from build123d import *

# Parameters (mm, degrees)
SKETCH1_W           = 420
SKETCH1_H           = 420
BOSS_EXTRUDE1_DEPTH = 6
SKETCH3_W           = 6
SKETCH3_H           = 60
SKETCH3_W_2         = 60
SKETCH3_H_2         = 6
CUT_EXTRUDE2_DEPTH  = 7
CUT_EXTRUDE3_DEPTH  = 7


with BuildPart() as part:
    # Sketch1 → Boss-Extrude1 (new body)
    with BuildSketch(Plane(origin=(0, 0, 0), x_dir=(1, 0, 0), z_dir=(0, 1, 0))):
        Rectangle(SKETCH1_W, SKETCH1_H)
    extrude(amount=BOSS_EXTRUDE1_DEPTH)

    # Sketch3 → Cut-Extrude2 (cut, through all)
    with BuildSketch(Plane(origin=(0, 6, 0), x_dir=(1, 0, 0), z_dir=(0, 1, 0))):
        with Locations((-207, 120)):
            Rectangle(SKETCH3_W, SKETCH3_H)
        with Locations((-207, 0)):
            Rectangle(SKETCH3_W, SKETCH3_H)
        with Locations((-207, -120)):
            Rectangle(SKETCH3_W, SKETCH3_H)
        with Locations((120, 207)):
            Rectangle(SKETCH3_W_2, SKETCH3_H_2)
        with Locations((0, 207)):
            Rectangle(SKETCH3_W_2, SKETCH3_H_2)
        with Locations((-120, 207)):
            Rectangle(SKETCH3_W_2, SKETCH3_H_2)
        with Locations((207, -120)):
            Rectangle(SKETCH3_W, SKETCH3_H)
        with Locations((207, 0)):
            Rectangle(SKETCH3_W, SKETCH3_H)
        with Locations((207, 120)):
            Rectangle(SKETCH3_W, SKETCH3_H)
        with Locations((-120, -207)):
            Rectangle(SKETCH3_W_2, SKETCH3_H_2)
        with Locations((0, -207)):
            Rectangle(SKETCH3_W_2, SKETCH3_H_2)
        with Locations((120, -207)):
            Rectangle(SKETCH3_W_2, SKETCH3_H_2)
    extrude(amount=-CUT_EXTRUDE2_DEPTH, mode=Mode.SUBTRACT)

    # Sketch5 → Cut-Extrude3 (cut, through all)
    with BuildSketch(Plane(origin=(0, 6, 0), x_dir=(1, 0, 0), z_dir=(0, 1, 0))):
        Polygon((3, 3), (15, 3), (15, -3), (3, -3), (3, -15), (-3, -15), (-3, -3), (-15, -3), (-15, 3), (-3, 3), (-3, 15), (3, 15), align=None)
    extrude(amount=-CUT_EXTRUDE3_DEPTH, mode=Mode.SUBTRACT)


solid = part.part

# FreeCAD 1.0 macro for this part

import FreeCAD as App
import Part
import Sketcher
Q = App.Units.Quantity

doc = App.newDocument("Part")
body = doc.addObject("PartDesign::Body", "Body")

# Sketch on XZ plane
sketch1 = doc.addObject("Sketcher::SketchObject", "Sketch")
body.addObject(sketch1)
sketch1.AttachmentSupport = (doc.XZ_Plane, [""])
sketch1.MapMode = "FlatFace"
sketch1.addGeometry(Part.LineSegment(App.Vector(-210, -210, 0), App.Vector(-210, 210, 0)), False)
sketch1.addGeometry(Part.LineSegment(App.Vector(-210, 210, 0), App.Vector(210, 210, 0)), False)
sketch1.addGeometry(Part.LineSegment(App.Vector(210, 210, 0), App.Vector(210, -210, 0)), False)
sketch1.addGeometry(Part.LineSegment(App.Vector(210, -210, 0), App.Vector(-210, -210, 0)), False)
sketch1.addConstraint(Sketcher.Constraint("Coincident", 0, 2, 1, 1))
sketch1.addConstraint(Sketcher.Constraint("Coincident", 1, 2, 2, 1))
sketch1.addConstraint(Sketcher.Constraint("Coincident", 2, 2, 3, 1))
sketch1.addConstraint(Sketcher.Constraint("Coincident", 3, 2, 0, 1))
sketch1.addConstraint(Sketcher.Constraint("Vertical", 0))
sketch1.addConstraint(Sketcher.Constraint("Horizontal", 1))
sketch1.addConstraint(Sketcher.Constraint("Vertical", 2))
sketch1.addConstraint(Sketcher.Constraint("Horizontal", 3))
sketch1.addConstraint(Sketcher.Constraint("Symmetric", 0, 2, 2, 2, -1, 1))
sketch1.addConstraint(Sketcher.Constraint("Equal", 3, 0))
sketch1.addConstraint(Sketcher.Constraint("DistanceX", 1, 1, 1, 2, Q("420 mm")))
pad1 = doc.addObject("PartDesign::Pad", "Pad")
body.addObject(pad1)
pad1.Profile = sketch1
pad1.Length = 6
pad1.Reversed = True

# Sketch on XZ plane
sketch2 = doc.addObject("Sketcher::SketchObject", "Sketch001")
body.addObject(sketch2)
sketch2.AttachmentSupport = (doc.XZ_Plane, [""])
sketch2.MapMode = "FlatFace"
sketch2.AttachmentOffset = App.Placement(App.Vector(0, 0, -6), App.Rotation())
sketch2.addGeometry(Part.LineSegment(App.Vector(-210, -150, 0), App.Vector(-210, -90, 0)), False)
sketch2.addGeometry(Part.LineSegment(App.Vector(-210, -90, 0), App.Vector(-204, -90, 0)), False)
sketch2.addGeometry(Part.LineSegment(App.Vector(-204, -90, 0), App.Vector(-204, -150, 0)), False)
sketch2.addGeometry(Part.LineSegment(App.Vector(-204, -150, 0), App.Vector(-210, -150, 0)), False)
sketch2.addGeometry(Part.LineSegment(App.Vector(-210, -30, 0), App.Vector(-210, 30, 0)), False)
sketch2.addGeometry(Part.LineSegment(App.Vector(-210, 30, 0), App.Vector(-204, 30, 0)), False)
sketch2.addGeometry(Part.LineSegment(App.Vector(-204, 30, 0), App.Vector(-204, -30, 0)), False)
sketch2.addGeometry(Part.LineSegment(App.Vector(-204, -30, 0), App.Vector(-210, -30, 0)), False)
sketch2.addGeometry(Part.LineSegment(App.Vector(-210, 90, 0), App.Vector(-210, 150, 0)), False)
sketch2.addGeometry(Part.LineSegment(App.Vector(-210, 150, 0), App.Vector(-204, 150, 0)), False)
sketch2.addGeometry(Part.LineSegment(App.Vector(-204, 150, 0), App.Vector(-204, 90, 0)), False)
sketch2.addGeometry(Part.LineSegment(App.Vector(-204, 90, 0), App.Vector(-210, 90, 0)), False)
sketch2.addGeometry(Part.LineSegment(App.Vector(90, -210, 0), App.Vector(90, -204, 0)), False)
sketch2.addGeometry(Part.LineSegment(App.Vector(90, -204, 0), App.Vector(150, -204, 0)), False)
sketch2.addGeometry(Part.LineSegment(App.Vector(150, -204, 0), App.Vector(150, -210, 0)), False)
sketch2.addGeometry(Part.LineSegment(App.Vector(150, -210, 0), App.Vector(90, -210, 0)), False)
sketch2.addGeometry(Part.LineSegment(App.Vector(-30, -210, 0), App.Vector(-30, -204, 0)), False)
sketch2.addGeometry(Part.LineSegment(App.Vector(-30, -204, 0), App.Vector(30, -204, 0)), False)
sketch2.addGeometry(Part.LineSegment(App.Vector(30, -204, 0), App.Vector(30, -210, 0)), False)
sketch2.addGeometry(Part.LineSegment(App.Vector(30, -210, 0), App.Vector(-30, -210, 0)), False)
sketch2.addGeometry(Part.LineSegment(App.Vector(-150, -210, 0), App.Vector(-150, -204, 0)), False)
sketch2.addGeometry(Part.LineSegment(App.Vector(-150, -204, 0), App.Vector(-90, -204, 0)), False)
sketch2.addGeometry(Part.LineSegment(App.Vector(-90, -204, 0), App.Vector(-90, -210, 0)), False)
sketch2.addGeometry(Part.LineSegment(App.Vector(-90, -210, 0), App.Vector(-150, -210, 0)), False)
sketch2.addGeometry(Part.LineSegment(App.Vector(204, 90, 0), App.Vector(204, 150, 0)), False)
sketch2.addGeometry(Part.LineSegment(App.Vector(204, 150, 0), App.Vector(210, 150, 0)), False)
sketch2.addGeometry(Part.LineSegment(App.Vector(210, 150, 0), App.Vector(210, 90, 0)), False)
sketch2.addGeometry(Part.LineSegment(App.Vector(210, 90, 0), App.Vector(204, 90, 0)), False)
sketch2.addGeometry(Part.LineSegment(App.Vector(204, -30, 0), App.Vector(204, 30, 0)), False)
sketch2.addGeometry(Part.LineSegment(App.Vector(204, 30, 0), App.Vector(210, 30, 0)), False)
sketch2.addGeometry(Part.LineSegment(App.Vector(210, 30, 0), App.Vector(210, -30, 0)), False)
sketch2.addGeometry(Part.LineSegment(App.Vector(210, -30, 0), App.Vector(204, -30, 0)), False)
sketch2.addGeometry(Part.LineSegment(App.Vector(204, -150, 0), App.Vector(204, -90, 0)), False)
sketch2.addGeometry(Part.LineSegment(App.Vector(204, -90, 0), App.Vector(210, -90, 0)), False)
sketch2.addGeometry(Part.LineSegment(App.Vector(210, -90, 0), App.Vector(210, -150, 0)), False)
sketch2.addGeometry(Part.LineSegment(App.Vector(210, -150, 0), App.Vector(204, -150, 0)), False)
sketch2.addGeometry(Part.LineSegment(App.Vector(-150, 204, 0), App.Vector(-150, 210, 0)), False)
sketch2.addGeometry(Part.LineSegment(App.Vector(-150, 210, 0), App.Vector(-90, 210, 0)), False)
sketch2.addGeometry(Part.LineSegment(App.Vector(-90, 210, 0), App.Vector(-90, 204, 0)), False)
sketch2.addGeometry(Part.LineSegment(App.Vector(-90, 204, 0), App.Vector(-150, 204, 0)), False)
sketch2.addGeometry(Part.LineSegment(App.Vector(-30, 204, 0), App.Vector(-30, 210, 0)), False)
sketch2.addGeometry(Part.LineSegment(App.Vector(-30, 210, 0), App.Vector(30, 210, 0)), False)
sketch2.addGeometry(Part.LineSegment(App.Vector(30, 210, 0), App.Vector(30, 204, 0)), False)
sketch2.addGeometry(Part.LineSegment(App.Vector(30, 204, 0), App.Vector(-30, 204, 0)), False)
sketch2.addGeometry(Part.LineSegment(App.Vector(90, 204, 0), App.Vector(90, 210, 0)), False)
sketch2.addGeometry(Part.LineSegment(App.Vector(90, 210, 0), App.Vector(150, 210, 0)), False)
sketch2.addGeometry(Part.LineSegment(App.Vector(150, 210, 0), App.Vector(150, 204, 0)), False)
sketch2.addGeometry(Part.LineSegment(App.Vector(150, 204, 0), App.Vector(90, 204, 0)), False)
sketch2.addConstraint(Sketcher.Constraint("Coincident", 0, 2, 1, 1))
sketch2.addConstraint(Sketcher.Constraint("Coincident", 1, 2, 2, 1))
sketch2.addConstraint(Sketcher.Constraint("Coincident", 2, 2, 3, 1))
sketch2.addConstraint(Sketcher.Constraint("Coincident", 3, 2, 0, 1))
sketch2.addConstraint(Sketcher.Constraint("Coincident", 4, 2, 5, 1))
sketch2.addConstraint(Sketcher.Constraint("Coincident", 5, 2, 6, 1))
sketch2.addConstraint(Sketcher.Constraint("Coincident", 6, 2, 7, 1))
sketch2.addConstraint(Sketcher.Constraint("Coincident", 7, 2, 4, 1))
sketch2.addConstraint(Sketcher.Constraint("Coincident", 8, 2, 9, 1))
sketch2.addConstraint(Sketcher.Constraint("Coincident", 9, 2, 10, 1))
sketch2.addConstraint(Sketcher.Constraint("Coincident", 10, 2, 11, 1))
sketch2.addConstraint(Sketcher.Constraint("Coincident", 11, 2, 8, 1))
sketch2.addConstraint(Sketcher.Constraint("Coincident", 12, 2, 13, 1))
sketch2.addConstraint(Sketcher.Constraint("Coincident", 13, 2, 14, 1))
sketch2.addConstraint(Sketcher.Constraint("Coincident", 14, 2, 15, 1))
sketch2.addConstraint(Sketcher.Constraint("Coincident", 15, 2, 12, 1))
sketch2.addConstraint(Sketcher.Constraint("Coincident", 16, 2, 17, 1))
sketch2.addConstraint(Sketcher.Constraint("Coincident", 17, 2, 18, 1))
sketch2.addConstraint(Sketcher.Constraint("Coincident", 18, 2, 19, 1))
sketch2.addConstraint(Sketcher.Constraint("Coincident", 19, 2, 16, 1))
sketch2.addConstraint(Sketcher.Constraint("Coincident", 20, 2, 21, 1))
sketch2.addConstraint(Sketcher.Constraint("Coincident", 21, 2, 22, 1))
sketch2.addConstraint(Sketcher.Constraint("Coincident", 22, 2, 23, 1))
sketch2.addConstraint(Sketcher.Constraint("Coincident", 23, 2, 20, 1))
sketch2.addConstraint(Sketcher.Constraint("Coincident", 24, 2, 25, 1))
sketch2.addConstraint(Sketcher.Constraint("Coincident", 25, 2, 26, 1))
sketch2.addConstraint(Sketcher.Constraint("Coincident", 26, 2, 27, 1))
sketch2.addConstraint(Sketcher.Constraint("Coincident", 27, 2, 24, 1))
sketch2.addConstraint(Sketcher.Constraint("Coincident", 28, 2, 29, 1))
sketch2.addConstraint(Sketcher.Constraint("Coincident", 29, 2, 30, 1))
sketch2.addConstraint(Sketcher.Constraint("Coincident", 30, 2, 31, 1))
sketch2.addConstraint(Sketcher.Constraint("Coincident", 31, 2, 28, 1))
sketch2.addConstraint(Sketcher.Constraint("Coincident", 32, 2, 33, 1))
sketch2.addConstraint(Sketcher.Constraint("Coincident", 33, 2, 34, 1))
sketch2.addConstraint(Sketcher.Constraint("Coincident", 34, 2, 35, 1))
sketch2.addConstraint(Sketcher.Constraint("Coincident", 35, 2, 32, 1))
sketch2.addConstraint(Sketcher.Constraint("Coincident", 36, 2, 37, 1))
sketch2.addConstraint(Sketcher.Constraint("Coincident", 37, 2, 38, 1))
sketch2.addConstraint(Sketcher.Constraint("Coincident", 38, 2, 39, 1))
sketch2.addConstraint(Sketcher.Constraint("Coincident", 39, 2, 36, 1))
sketch2.addConstraint(Sketcher.Constraint("Coincident", 40, 2, 41, 1))
sketch2.addConstraint(Sketcher.Constraint("Coincident", 41, 2, 42, 1))
sketch2.addConstraint(Sketcher.Constraint("Coincident", 42, 2, 43, 1))
sketch2.addConstraint(Sketcher.Constraint("Coincident", 43, 2, 40, 1))
sketch2.addConstraint(Sketcher.Constraint("Coincident", 44, 2, 45, 1))
sketch2.addConstraint(Sketcher.Constraint("Coincident", 45, 2, 46, 1))
sketch2.addConstraint(Sketcher.Constraint("Coincident", 46, 2, 47, 1))
sketch2.addConstraint(Sketcher.Constraint("Coincident", 47, 2, 44, 1))
sketch2.addConstraint(Sketcher.Constraint("Vertical", 0))
sketch2.addConstraint(Sketcher.Constraint("Horizontal", 1))
sketch2.addConstraint(Sketcher.Constraint("Vertical", 2))
sketch2.addConstraint(Sketcher.Constraint("Horizontal", 3))
sketch2.addConstraint(Sketcher.Constraint("Vertical", 4))
sketch2.addConstraint(Sketcher.Constraint("Horizontal", 5))
sketch2.addConstraint(Sketcher.Constraint("Vertical", 6))
sketch2.addConstraint(Sketcher.Constraint("Horizontal", 7))
sketch2.addConstraint(Sketcher.Constraint("Vertical", 8))
sketch2.addConstraint(Sketcher.Constraint("Horizontal", 9))
sketch2.addConstraint(Sketcher.Constraint("Vertical", 10))
sketch2.addConstraint(Sketcher.Constraint("Horizontal", 11))
sketch2.addConstraint(Sketcher.Constraint("Vertical", 12))
sketch2.addConstraint(Sketcher.Constraint("Horizontal", 13))
sketch2.addConstraint(Sketcher.Constraint("Vertical", 14))
sketch2.addConstraint(Sketcher.Constraint("Horizontal", 15))
sketch2.addConstraint(Sketcher.Constraint("Vertical", 16))
sketch2.addConstraint(Sketcher.Constraint("Horizontal", 17))
sketch2.addConstraint(Sketcher.Constraint("Vertical", 18))
sketch2.addConstraint(Sketcher.Constraint("Horizontal", 19))
sketch2.addConstraint(Sketcher.Constraint("Vertical", 20))
sketch2.addConstraint(Sketcher.Constraint("Horizontal", 21))
sketch2.addConstraint(Sketcher.Constraint("Vertical", 22))
sketch2.addConstraint(Sketcher.Constraint("Horizontal", 23))
sketch2.addConstraint(Sketcher.Constraint("Vertical", 24))
sketch2.addConstraint(Sketcher.Constraint("Horizontal", 25))
sketch2.addConstraint(Sketcher.Constraint("Vertical", 26))
sketch2.addConstraint(Sketcher.Constraint("Horizontal", 27))
sketch2.addConstraint(Sketcher.Constraint("Vertical", 28))
sketch2.addConstraint(Sketcher.Constraint("Horizontal", 29))
sketch2.addConstraint(Sketcher.Constraint("Vertical", 30))
sketch2.addConstraint(Sketcher.Constraint("Horizontal", 31))
sketch2.addConstraint(Sketcher.Constraint("Vertical", 32))
sketch2.addConstraint(Sketcher.Constraint("Horizontal", 33))
sketch2.addConstraint(Sketcher.Constraint("Vertical", 34))
sketch2.addConstraint(Sketcher.Constraint("Horizontal", 35))
sketch2.addConstraint(Sketcher.Constraint("Vertical", 36))
sketch2.addConstraint(Sketcher.Constraint("Horizontal", 37))
sketch2.addConstraint(Sketcher.Constraint("Vertical", 38))
sketch2.addConstraint(Sketcher.Constraint("Horizontal", 39))
sketch2.addConstraint(Sketcher.Constraint("Vertical", 40))
sketch2.addConstraint(Sketcher.Constraint("Horizontal", 41))
sketch2.addConstraint(Sketcher.Constraint("Vertical", 42))
sketch2.addConstraint(Sketcher.Constraint("Horizontal", 43))
sketch2.addConstraint(Sketcher.Constraint("Vertical", 44))
sketch2.addConstraint(Sketcher.Constraint("Horizontal", 45))
sketch2.addConstraint(Sketcher.Constraint("Vertical", 46))
sketch2.addConstraint(Sketcher.Constraint("Horizontal", 47))
sketch2.addConstraint(Sketcher.Constraint("Symmetric", 2, 2, 24, 2, -1, 1))
sketch2.addConstraint(Sketcher.Constraint("Symmetric", 0, 2, 26, 2, -1, 1))
sketch2.addConstraint(Sketcher.Constraint("Symmetric", 6, 2, 28, 2, -1, 1))
sketch2.addConstraint(Sketcher.Constraint("Symmetric", 4, 2, 30, 2, -1, 1))
sketch2.addConstraint(Sketcher.Constraint("Symmetric", 10, 2, 32, 2, -1, 1))
sketch2.addConstraint(Sketcher.Constraint("Symmetric", 8, 2, 34, 2, -1, 1))
sketch2.addConstraint(Sketcher.Constraint("Symmetric", 14, 2, 36, 2, -1, 1))
sketch2.addConstraint(Sketcher.Constraint("Symmetric", 12, 2, 38, 2, -1, 1))
sketch2.addConstraint(Sketcher.Constraint("Symmetric", 18, 2, 40, 2, -1, 1))
sketch2.addConstraint(Sketcher.Constraint("Symmetric", 16, 2, 42, 2, -1, 1))
sketch2.addConstraint(Sketcher.Constraint("Symmetric", 22, 2, 44, 2, -1, 1))
sketch2.addConstraint(Sketcher.Constraint("Symmetric", 20, 2, 46, 2, -1, 1))
sketch2.addConstraint(Sketcher.Constraint("Symmetric", 13, 2, 20, 2, -2))
sketch2.addConstraint(Sketcher.Constraint("Symmetric", 15, 2, 22, 2, -2))
sketch2.addConstraint(Sketcher.Constraint("Symmetric", 9, 2, 24, 2, -2))
sketch2.addConstraint(Sketcher.Constraint("Symmetric", 11, 2, 26, 2, -2))
sketch2.addConstraint(Sketcher.Constraint("Horizontal", 13, 2, 16, 2))
sketch2.addConstraint(Sketcher.Constraint("Horizontal", 15, 2, 18, 2))
sketch2.addConstraint(Sketcher.Constraint("Horizontal", 5, 2, 28, 2))
sketch2.addConstraint(Sketcher.Constraint("Vertical", 3, 2, 4, 2))
sketch2.addConstraint(Sketcher.Constraint("Vertical", 2, 2, 5, 2))
sketch2.addConstraint(Sketcher.Constraint("Vertical", 19, 2, 40, 2))
sketch2.addConstraint(Sketcher.Constraint("Equal", 15, 17))
sketch2.addConstraint(Sketcher.Constraint("Equal", 47, 0))
sketch2.addConstraint(Sketcher.Constraint("Equal", 2, 4))
sketch2.addConstraint(Sketcher.Constraint("Equal", 35, 12))
sketch2.addConstraint(Sketcher.Constraint("DistanceX", 1, 1, 1, 2, Q("6 mm")))
sketch2.addConstraint(Sketcher.Constraint("DistanceX", 13, 1, 13, 2, Q("60 mm")))
sketch2.addConstraint(Sketcher.Constraint("DistanceX", 0, 2, -1, 1, Q("210 mm")))
sketch2.addConstraint(Sketcher.Constraint("DistanceY", 0, 2, -1, 1, Q("90 mm")))
sketch2.addConstraint(Sketcher.Constraint("DistanceX", -1, 1, 12, 2, Q("90 mm")))
sketch2.addConstraint(Sketcher.Constraint("DistanceY", 12, 2, -1, 1, Q("204 mm")))
pocket1 = doc.addObject("PartDesign::Pocket", "Pocket")
body.addObject(pocket1)
pocket1.Profile = sketch2
pocket1.Type = "ThroughAll"
pocket1.Reversed = True

# Sketch on XZ plane
sketch3 = doc.addObject("Sketcher::SketchObject", "Sketch002")
body.addObject(sketch3)
sketch3.AttachmentSupport = (doc.XZ_Plane, [""])
sketch3.MapMode = "FlatFace"
sketch3.AttachmentOffset = App.Placement(App.Vector(0, 0, -6), App.Rotation())
sketch3.addGeometry(Part.LineSegment(App.Vector(15, -3, 0), App.Vector(3, -3, 0)), False)
sketch3.addGeometry(Part.LineSegment(App.Vector(3, -3, 0), App.Vector(3, -15, 0)), False)
sketch3.addGeometry(Part.LineSegment(App.Vector(3, -15, 0), App.Vector(-3, -15, 0)), False)
sketch3.addGeometry(Part.LineSegment(App.Vector(-3, -15, 0), App.Vector(-3, -3, 0)), False)
sketch3.addGeometry(Part.LineSegment(App.Vector(-3, -3, 0), App.Vector(-15, -3, 0)), False)
sketch3.addGeometry(Part.LineSegment(App.Vector(-15, -3, 0), App.Vector(-15, 3, 0)), False)
sketch3.addGeometry(Part.LineSegment(App.Vector(-15, 3, 0), App.Vector(-3, 3, 0)), False)
sketch3.addGeometry(Part.LineSegment(App.Vector(-3, 3, 0), App.Vector(-3, 15, 0)), False)
sketch3.addGeometry(Part.LineSegment(App.Vector(-3, 15, 0), App.Vector(3, 15, 0)), False)
sketch3.addGeometry(Part.LineSegment(App.Vector(3, 15, 0), App.Vector(3, 3, 0)), False)
sketch3.addGeometry(Part.LineSegment(App.Vector(3, 3, 0), App.Vector(15, 3, 0)), False)
sketch3.addGeometry(Part.LineSegment(App.Vector(15, 3, 0), App.Vector(15, -3, 0)), False)
sketch3.addConstraint(Sketcher.Constraint("Coincident", 0, 2, 1, 1))
sketch3.addConstraint(Sketcher.Constraint("Coincident", 1, 2, 2, 1))
sketch3.addConstraint(Sketcher.Constraint("Coincident", 2, 2, 3, 1))
sketch3.addConstraint(Sketcher.Constraint("Coincident", 3, 2, 4, 1))
sketch3.addConstraint(Sketcher.Constraint("Coincident", 4, 2, 5, 1))
sketch3.addConstraint(Sketcher.Constraint("Coincident", 5, 2, 6, 1))
sketch3.addConstraint(Sketcher.Constraint("Coincident", 6, 2, 7, 1))
sketch3.addConstraint(Sketcher.Constraint("Coincident", 7, 2, 8, 1))
sketch3.addConstraint(Sketcher.Constraint("Coincident", 8, 2, 9, 1))
sketch3.addConstraint(Sketcher.Constraint("Coincident", 9, 2, 10, 1))
sketch3.addConstraint(Sketcher.Constraint("Coincident", 10, 2, 11, 1))
sketch3.addConstraint(Sketcher.Constraint("Coincident", 11, 2, 0, 1))
sketch3.addConstraint(Sketcher.Constraint("Horizontal", 0))
sketch3.addConstraint(Sketcher.Constraint("Vertical", 1))
sketch3.addConstraint(Sketcher.Constraint("Horizontal", 2))
sketch3.addConstraint(Sketcher.Constraint("Vertical", 3))
sketch3.addConstraint(Sketcher.Constraint("Horizontal", 4))
sketch3.addConstraint(Sketcher.Constraint("Vertical", 5))
sketch3.addConstraint(Sketcher.Constraint("Horizontal", 6))
sketch3.addConstraint(Sketcher.Constraint("Vertical", 7))
sketch3.addConstraint(Sketcher.Constraint("Horizontal", 8))
sketch3.addConstraint(Sketcher.Constraint("Vertical", 9))
sketch3.addConstraint(Sketcher.Constraint("Horizontal", 10))
sketch3.addConstraint(Sketcher.Constraint("Vertical", 11))
sketch3.addConstraint(Sketcher.Constraint("Symmetric", 0, 2, 6, 2, -1, 1))
sketch3.addConstraint(Sketcher.Constraint("Symmetric", 2, 2, 8, 2, -1, 1))
sketch3.addConstraint(Sketcher.Constraint("Symmetric", 4, 2, 10, 2, -1, 1))
sketch3.addConstraint(Sketcher.Constraint("Symmetric", 0, 2, 3, 2, -2))
sketch3.addConstraint(Sketcher.Constraint("Equal", 10, 1))
sketch3.addConstraint(Sketcher.Constraint("Equal", 8, 5))
sketch3.addConstraint(Sketcher.Constraint("DistanceX", 0, 2, 0, 1, Q("12 mm")))
sketch3.addConstraint(Sketcher.Constraint("DistanceX", 2, 2, 2, 1, Q("6 mm")))
pocket2 = doc.addObject("PartDesign::Pocket", "Pocket001")
body.addObject(pocket2)
pocket2.Profile = sketch3
pocket2.Type = "ThroughAll"
pocket2.Reversed = True

doc.recompute()
